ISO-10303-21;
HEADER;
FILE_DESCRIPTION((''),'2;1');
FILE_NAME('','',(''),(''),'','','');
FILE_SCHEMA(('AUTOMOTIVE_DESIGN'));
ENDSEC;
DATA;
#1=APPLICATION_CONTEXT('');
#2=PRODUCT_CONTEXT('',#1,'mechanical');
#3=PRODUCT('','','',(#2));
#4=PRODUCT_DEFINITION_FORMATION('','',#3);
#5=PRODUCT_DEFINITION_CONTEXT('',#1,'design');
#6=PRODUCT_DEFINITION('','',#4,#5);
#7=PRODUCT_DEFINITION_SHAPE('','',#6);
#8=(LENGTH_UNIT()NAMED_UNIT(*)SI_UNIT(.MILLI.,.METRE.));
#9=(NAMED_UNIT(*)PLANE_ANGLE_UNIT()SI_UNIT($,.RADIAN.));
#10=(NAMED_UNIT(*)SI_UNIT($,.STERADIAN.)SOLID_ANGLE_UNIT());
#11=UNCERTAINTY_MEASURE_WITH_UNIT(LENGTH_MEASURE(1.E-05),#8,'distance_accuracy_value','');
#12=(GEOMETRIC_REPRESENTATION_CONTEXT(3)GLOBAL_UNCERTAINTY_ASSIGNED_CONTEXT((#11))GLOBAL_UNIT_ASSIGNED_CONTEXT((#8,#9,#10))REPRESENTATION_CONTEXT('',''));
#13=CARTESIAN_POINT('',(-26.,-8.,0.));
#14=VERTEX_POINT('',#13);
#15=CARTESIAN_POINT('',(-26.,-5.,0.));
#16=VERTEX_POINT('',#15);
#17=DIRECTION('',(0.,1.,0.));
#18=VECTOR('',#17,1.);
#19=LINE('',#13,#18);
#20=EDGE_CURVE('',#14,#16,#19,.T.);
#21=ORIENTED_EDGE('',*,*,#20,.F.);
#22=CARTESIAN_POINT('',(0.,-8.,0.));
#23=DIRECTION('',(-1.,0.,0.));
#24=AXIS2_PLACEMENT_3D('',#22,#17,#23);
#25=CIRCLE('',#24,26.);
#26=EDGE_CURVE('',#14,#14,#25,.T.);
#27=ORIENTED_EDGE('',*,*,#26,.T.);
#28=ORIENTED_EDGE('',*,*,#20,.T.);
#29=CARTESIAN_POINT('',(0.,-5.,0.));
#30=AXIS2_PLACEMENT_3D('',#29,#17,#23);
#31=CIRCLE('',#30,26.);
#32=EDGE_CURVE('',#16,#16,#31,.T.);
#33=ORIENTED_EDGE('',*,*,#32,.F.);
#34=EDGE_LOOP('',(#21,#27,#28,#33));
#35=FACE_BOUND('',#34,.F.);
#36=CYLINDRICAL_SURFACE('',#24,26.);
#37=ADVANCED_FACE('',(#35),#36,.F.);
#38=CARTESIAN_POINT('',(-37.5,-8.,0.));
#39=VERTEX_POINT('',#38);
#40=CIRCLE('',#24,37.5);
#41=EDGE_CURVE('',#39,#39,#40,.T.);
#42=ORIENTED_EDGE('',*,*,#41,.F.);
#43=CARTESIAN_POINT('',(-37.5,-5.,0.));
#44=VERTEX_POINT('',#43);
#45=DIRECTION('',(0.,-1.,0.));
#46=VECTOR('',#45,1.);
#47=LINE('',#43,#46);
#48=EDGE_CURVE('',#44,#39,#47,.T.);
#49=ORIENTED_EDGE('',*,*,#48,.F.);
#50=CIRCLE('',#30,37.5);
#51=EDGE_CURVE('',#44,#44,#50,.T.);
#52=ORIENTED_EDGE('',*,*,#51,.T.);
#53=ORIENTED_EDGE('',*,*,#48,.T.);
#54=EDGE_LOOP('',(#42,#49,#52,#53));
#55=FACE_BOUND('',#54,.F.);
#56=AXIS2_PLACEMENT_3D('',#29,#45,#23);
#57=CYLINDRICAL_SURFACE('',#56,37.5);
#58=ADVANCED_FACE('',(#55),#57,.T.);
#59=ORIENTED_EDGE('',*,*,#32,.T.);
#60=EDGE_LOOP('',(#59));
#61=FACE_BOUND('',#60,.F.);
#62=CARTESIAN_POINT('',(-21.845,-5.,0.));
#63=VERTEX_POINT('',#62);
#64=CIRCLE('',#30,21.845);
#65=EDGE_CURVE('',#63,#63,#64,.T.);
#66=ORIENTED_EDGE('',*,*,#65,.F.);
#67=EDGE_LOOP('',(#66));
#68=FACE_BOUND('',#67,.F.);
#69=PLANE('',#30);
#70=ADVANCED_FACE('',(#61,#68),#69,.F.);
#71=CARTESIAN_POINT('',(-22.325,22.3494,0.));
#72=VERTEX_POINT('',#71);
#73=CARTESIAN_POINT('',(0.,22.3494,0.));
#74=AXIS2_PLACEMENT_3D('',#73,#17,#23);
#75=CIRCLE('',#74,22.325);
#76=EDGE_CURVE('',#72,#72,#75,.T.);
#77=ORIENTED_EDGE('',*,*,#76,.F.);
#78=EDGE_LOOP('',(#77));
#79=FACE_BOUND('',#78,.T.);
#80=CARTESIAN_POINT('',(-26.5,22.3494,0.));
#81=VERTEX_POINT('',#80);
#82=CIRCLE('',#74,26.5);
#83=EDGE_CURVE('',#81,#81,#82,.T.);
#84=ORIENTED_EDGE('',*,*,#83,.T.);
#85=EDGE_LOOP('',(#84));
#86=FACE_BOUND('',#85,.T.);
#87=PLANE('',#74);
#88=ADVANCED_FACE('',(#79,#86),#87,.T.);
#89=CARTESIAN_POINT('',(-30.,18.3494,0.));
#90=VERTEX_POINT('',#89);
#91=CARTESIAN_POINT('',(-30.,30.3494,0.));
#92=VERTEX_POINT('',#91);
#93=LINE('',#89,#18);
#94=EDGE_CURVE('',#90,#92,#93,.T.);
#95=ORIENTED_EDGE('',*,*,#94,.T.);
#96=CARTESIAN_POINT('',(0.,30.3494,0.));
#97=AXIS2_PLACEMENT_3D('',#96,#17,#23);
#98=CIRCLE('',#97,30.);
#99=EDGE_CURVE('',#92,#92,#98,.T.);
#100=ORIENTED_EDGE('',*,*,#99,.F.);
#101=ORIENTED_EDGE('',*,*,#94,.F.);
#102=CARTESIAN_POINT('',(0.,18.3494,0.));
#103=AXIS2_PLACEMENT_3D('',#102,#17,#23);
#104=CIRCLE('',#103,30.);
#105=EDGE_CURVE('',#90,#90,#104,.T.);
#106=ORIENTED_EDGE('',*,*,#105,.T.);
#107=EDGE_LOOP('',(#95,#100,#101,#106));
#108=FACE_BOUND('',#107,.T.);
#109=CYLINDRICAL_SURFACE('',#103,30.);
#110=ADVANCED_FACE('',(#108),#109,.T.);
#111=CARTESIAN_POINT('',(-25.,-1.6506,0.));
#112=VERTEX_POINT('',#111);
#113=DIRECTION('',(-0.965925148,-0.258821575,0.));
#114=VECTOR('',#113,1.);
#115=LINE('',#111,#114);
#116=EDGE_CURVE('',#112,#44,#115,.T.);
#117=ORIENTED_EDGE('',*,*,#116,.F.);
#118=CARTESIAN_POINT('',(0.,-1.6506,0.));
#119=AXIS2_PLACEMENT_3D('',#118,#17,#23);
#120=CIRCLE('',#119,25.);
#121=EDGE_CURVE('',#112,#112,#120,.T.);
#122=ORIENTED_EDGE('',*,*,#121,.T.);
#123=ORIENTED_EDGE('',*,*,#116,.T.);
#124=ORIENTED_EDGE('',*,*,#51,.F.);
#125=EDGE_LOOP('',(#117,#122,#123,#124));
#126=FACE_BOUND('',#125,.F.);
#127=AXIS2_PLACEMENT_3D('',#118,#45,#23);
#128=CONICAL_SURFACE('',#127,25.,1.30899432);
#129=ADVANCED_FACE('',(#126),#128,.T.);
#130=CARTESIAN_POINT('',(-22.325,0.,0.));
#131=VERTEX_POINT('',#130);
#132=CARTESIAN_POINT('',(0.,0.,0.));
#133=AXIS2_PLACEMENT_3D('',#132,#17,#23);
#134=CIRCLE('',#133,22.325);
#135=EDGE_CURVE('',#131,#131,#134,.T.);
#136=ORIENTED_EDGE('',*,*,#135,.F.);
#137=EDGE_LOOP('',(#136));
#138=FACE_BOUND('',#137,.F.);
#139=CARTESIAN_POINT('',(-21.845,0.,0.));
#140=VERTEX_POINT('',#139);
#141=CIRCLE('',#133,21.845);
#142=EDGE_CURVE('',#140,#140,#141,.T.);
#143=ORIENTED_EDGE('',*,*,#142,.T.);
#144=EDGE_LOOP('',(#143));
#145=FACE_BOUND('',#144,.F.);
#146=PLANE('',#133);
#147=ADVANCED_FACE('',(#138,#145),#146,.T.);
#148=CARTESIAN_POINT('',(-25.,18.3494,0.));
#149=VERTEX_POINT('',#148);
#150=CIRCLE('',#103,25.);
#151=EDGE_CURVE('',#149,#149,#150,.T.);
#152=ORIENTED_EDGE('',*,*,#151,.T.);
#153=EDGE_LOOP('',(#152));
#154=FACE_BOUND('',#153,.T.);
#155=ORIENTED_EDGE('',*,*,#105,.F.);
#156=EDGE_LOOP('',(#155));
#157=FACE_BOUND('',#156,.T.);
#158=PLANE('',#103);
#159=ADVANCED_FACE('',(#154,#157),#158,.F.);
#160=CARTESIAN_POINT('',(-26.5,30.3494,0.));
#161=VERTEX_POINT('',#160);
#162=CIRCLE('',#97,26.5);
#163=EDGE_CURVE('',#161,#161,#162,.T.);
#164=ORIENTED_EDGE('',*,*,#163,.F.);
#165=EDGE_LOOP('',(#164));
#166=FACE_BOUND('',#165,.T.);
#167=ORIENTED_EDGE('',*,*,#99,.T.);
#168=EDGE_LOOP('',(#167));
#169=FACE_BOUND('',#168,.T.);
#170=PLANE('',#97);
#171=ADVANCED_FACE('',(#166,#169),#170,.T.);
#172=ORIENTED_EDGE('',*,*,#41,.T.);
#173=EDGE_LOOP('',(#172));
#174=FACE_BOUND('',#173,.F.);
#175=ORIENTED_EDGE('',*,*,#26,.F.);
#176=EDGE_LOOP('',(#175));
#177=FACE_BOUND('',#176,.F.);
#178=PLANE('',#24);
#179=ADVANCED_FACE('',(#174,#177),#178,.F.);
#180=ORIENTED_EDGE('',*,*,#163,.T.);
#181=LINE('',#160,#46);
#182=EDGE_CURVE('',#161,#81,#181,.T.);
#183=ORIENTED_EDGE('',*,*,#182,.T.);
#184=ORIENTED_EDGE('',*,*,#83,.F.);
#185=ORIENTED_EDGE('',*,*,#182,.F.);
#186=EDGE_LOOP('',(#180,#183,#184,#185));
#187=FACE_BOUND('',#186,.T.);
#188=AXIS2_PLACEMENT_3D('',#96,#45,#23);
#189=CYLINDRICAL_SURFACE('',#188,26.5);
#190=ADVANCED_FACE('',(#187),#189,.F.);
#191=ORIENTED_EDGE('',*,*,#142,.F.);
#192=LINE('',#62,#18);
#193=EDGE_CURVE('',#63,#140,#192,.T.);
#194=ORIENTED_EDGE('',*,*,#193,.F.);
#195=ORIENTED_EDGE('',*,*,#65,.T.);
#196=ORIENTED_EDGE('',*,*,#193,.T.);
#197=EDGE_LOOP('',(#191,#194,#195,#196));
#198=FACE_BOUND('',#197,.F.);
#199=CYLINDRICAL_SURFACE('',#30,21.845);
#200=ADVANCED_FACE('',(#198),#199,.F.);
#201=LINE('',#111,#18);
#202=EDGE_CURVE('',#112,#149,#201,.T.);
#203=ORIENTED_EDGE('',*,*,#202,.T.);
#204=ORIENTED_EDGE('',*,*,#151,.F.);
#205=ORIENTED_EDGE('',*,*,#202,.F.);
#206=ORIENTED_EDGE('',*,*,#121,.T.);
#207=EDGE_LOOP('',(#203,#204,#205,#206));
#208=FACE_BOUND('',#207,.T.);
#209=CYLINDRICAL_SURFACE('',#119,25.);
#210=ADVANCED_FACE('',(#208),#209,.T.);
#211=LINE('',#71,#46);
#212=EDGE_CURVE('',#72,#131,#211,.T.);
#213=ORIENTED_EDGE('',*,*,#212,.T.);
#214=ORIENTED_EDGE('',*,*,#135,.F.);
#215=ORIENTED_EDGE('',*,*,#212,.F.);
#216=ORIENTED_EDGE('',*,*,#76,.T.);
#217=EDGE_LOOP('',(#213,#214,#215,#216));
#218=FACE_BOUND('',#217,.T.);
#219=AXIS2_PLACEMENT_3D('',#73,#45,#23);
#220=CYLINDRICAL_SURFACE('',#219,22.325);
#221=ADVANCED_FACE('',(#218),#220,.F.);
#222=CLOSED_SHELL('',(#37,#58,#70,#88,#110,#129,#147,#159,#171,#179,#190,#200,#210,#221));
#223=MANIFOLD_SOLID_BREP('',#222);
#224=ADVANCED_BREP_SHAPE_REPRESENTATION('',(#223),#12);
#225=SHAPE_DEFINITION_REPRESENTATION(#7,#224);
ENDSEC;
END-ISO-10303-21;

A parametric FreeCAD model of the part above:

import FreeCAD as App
import Part
import Sketcher

V = App.Vector
Q = App.Units.Quantity

doc = App.newDocument("Part")
body = doc.addObject("PartDesign::Body", "Body")

# Sketch on XY plane
sketch1 = body.newObject("Sketcher::SketchObject", "Sketch")
sketch1.AttachmentSupport = (doc.getObject("XY_Plane"), [""])
sketch1.MapMode = "FlatFace"
sketch1.addGeometry([
    Part.LineSegment(V(-22.325, 0, 0), V(-22.325, 22.3494, 0)),  # 0
    Part.LineSegment(V(-22.325, 22.3494, 0), V(-26.5, 22.3494, 0)),  # 1
    Part.LineSegment(V(-26.5, 22.3494, 0), V(-26.5, 30.3494, 0)),  # 2
    Part.LineSegment(V(-26.5, 30.3494, 0), V(-30, 30.3494, 0)),  # 3
    Part.LineSegment(V(-30, 30.3494, 0), V(-30, 18.3494, 0)),  # 4
    Part.LineSegment(V(-30, 18.3494, 0), V(-25, 18.3494, 0)),  # 5
    Part.LineSegment(V(-25, 18.3494, 0), V(-25, -1.6506, 0)),  # 6
    Part.LineSegment(V(-25, -1.6506, 0), V(-37.5, -5, 0)),  # 7
    Part.LineSegment(V(-37.5, -5, 0), V(-37.5, -8, 0)),  # 8
    Part.LineSegment(V(-37.5, -8, 0), V(-26, -8, 0)),  # 9
    Part.LineSegment(V(-26, -8, 0), V(-26, -5, 0)),  # 10
    Part.LineSegment(V(-26, -5, 0), V(-21.845, -5, 0)),  # 11
    Part.LineSegment(V(-21.845, -5, 0), V(-21.845, 0, 0)),  # 12
    Part.LineSegment(V(-21.845, 0, 0), V(-22.325, 0, 0)),  # 13
], False)
sketch1.addConstraint([
    Sketcher.Constraint("Coincident", 0, 2, 1, 1),
    Sketcher.Constraint("Coincident", 1, 2, 2, 1),
    Sketcher.Constraint("Coincident", 2, 2, 3, 1),
    Sketcher.Constraint("Coincident", 3, 2, 4, 1),
    Sketcher.Constraint("Coincident", 4, 2, 5, 1),
    Sketcher.Constraint("Coincident", 5, 2, 6, 1),
    Sketcher.Constraint("Coincident", 6, 2, 7, 1),
    Sketcher.Constraint("Coincident", 7, 2, 8, 1),
    Sketcher.Constraint("Coincident", 8, 2, 9, 1),
    Sketcher.Constraint("Coincident", 9, 2, 10, 1),
    Sketcher.Constraint("Coincident", 10, 2, 11, 1),
    Sketcher.Constraint("Coincident", 11, 2, 12, 1),
    Sketcher.Constraint("Coincident", 12, 2, 13, 1),
    Sketcher.Constraint("Coincident", 13, 2, 0, 1),
    Sketcher.Constraint("Vertical", 0),
    Sketcher.Constraint("Horizontal", 1),
    Sketcher.Constraint("Vertical", 2),
    Sketcher.Constraint("Horizontal", 3),
    Sketcher.Constraint("Vertical", 4),
    Sketcher.Constraint("Horizontal", 5),
    Sketcher.Constraint("Vertical", 6),
    Sketcher.Constraint("Vertical", 8),
    Sketcher.Constraint("Horizontal", 9),
    Sketcher.Constraint("Vertical", 10),
    Sketcher.Constraint("Horizontal", 11),
    Sketcher.Constraint("Vertical", 12),
    Sketcher.Constraint("Horizontal", 13),
    Sketcher.Constraint("PointOnObject", 12, 2, -1),
    Sketcher.Constraint("Horizontal", 7, 2, 10, 2),
    Sketcher.Constraint("Equal", 5, 12),
    Sketcher.Constraint("DistanceX", 5, 1, 5, 2, Q("5 mm")),
    Sketcher.Constraint("DistanceY", 2, 1, 2, 2, Q("8 mm")),
    Sketcher.Constraint("DistanceY", 4, 2, 4, 1, Q("12 mm")),
    Sketcher.Constraint("DistanceY", 6, 2, 6, 1, Q("20 mm")),
    Sketcher.Constraint("DistanceY", 8, 2, 8, 1, Q("3 mm")),
    Sketcher.Constraint("DistanceX", 3, 2, -1, 1, Q("30 mm")),
    Sketcher.Constraint("DistanceX", 9, 2, -1, 1, Q("26 mm")),
    Sketcher.Constraint("DistanceX", 1, 2, -1, 1, Q("26.5 mm")),
    Sketcher.Constraint("DistanceX", 7, 2, -1, 1, Q("37.5 mm")),
    Sketcher.Constraint("Angle", 7, Q("-164.9998 deg")),
    Sketcher.Constraint("DistanceX", 0, 2, -1, 1, Q("22.325 mm")),
    Sketcher.Constraint("DistanceX", 11, 2, -1, 1, Q("21.845 mm")),
])
revolution = body.newObject("PartDesign::Revolution", "Revolution")
revolution.Profile = sketch1
revolution.ReferenceAxis = (sketch1, ["V_Axis"])
revolution.Angle = 360

doc.recompute()
